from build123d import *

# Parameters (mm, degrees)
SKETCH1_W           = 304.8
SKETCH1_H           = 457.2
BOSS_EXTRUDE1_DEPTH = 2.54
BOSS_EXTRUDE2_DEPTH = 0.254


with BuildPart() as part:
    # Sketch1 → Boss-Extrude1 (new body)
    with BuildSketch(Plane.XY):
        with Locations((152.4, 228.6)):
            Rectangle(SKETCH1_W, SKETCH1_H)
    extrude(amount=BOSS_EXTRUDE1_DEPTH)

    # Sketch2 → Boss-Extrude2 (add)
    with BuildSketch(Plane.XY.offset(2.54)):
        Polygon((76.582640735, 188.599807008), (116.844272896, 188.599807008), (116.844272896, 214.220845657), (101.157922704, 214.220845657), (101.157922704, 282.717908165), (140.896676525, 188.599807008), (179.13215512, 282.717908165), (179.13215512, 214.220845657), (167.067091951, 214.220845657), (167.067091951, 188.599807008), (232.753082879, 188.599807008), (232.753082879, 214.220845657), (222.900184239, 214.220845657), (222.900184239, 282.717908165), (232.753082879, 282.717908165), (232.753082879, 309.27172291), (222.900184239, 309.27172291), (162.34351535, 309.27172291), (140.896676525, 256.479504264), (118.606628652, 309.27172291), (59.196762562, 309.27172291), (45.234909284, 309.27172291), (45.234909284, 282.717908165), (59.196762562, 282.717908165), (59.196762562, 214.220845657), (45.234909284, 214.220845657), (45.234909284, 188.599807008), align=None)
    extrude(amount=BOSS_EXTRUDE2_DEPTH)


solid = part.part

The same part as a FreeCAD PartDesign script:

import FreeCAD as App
import Part
import Sketcher

V = App.Vector
Q = App.Units.Quantity

doc = App.newDocument("Part")
body = doc.addObject("PartDesign::Body", "Body")

# Sketch on XY plane
sketch1 = body.newObject("Sketcher::SketchObject", "Sketch")
sketch1.AttachmentSupport = (doc.getObject("XY_Plane"), [""])
sketch1.MapMode = "FlatFace"
sketch1.addGeometry([
    Part.LineSegment(V(0, 457.2, 0), V(0, 0, 0)),
    Part.LineSegment(V(0, 0, 0), V(304.8, 0, 0)),
    Part.LineSegment(V(304.8, 0, 0), V(304.8, 457.2, 0)),
    Part.LineSegment(V(304.8, 457.2, 0), V(0, 457.2, 0)),
], False)
sketch1.addConstraint([
    Sketcher.Constraint("Coincident", 0, 2, 1, 1),
    Sketcher.Constraint("Coincident", 1, 2, 2, 1),
    Sketcher.Constraint("Coincident", 2, 2, 3, 1),
    Sketcher.Constraint("Coincident", 3, 2, 0, 1),
    Sketcher.Constraint("Vertical", 0),
    Sketcher.Constraint("Horizontal", 1),
    Sketcher.Constraint("Vertical", 2),
    Sketcher.Constraint("Horizontal", 3),
    Sketcher.Constraint("Coincident", 0, 2, -1, 1),
    Sketcher.Constraint("DistanceX", 1, 1, 1, 2, Q("12 in")),
    Sketcher.Constraint("DistanceY", 0, 2, 0, 1, Q("18 in")),
])
pad1 = body.newObject("PartDesign::Pad", "Pad")
pad1.Profile = sketch1
pad1.Length = Q("0.1 in")

# Sketch on XY plane
sketch2 = body.newObject("Sketcher::SketchObject", "Sketch001")
sketch2.AttachmentSupport = (doc.getObject("XY_Plane"), [""])
sketch2.MapMode = "FlatFace"
sketch2.AttachmentOffset = App.Placement(V(0, 0, 0.1 * 25.4), App.Rotation())
sketch2.addGeometry([
    Part.LineSegment(V(116.844273, 188.599807, 0), V(116.844273, 214.220846, 0)),  # 0
    Part.LineSegment(V(116.844273, 214.220846, 0), V(101.157923, 214.220846, 0)),  # 1
    Part.LineSegment(V(101.157923, 214.220846, 0), V(101.157923, 282.717908, 0)),  # 2
    Part.LineSegment(V(101.157923, 282.717908, 0), V(140.896677, 188.599807, 0)),  # 3
    Part.LineSegment(V(140.896677, 188.599807, 0), V(179.132155, 282.717908, 0)),  # 4
    Part.LineSegment(V(179.132155, 282.717908, 0), V(179.132155, 214.220846, 0)),  # 5
    Part.LineSegment(V(179.132155, 214.220846, 0), V(167.067092, 214.220846, 0)),  # 6
    Part.LineSegment(V(167.067092, 214.220846, 0), V(167.067092, 188.599807, 0)),  # 7
    Part.LineSegment(V(167.067092, 188.599807, 0), V(232.753083, 188.599807, 0)),  # 8
    Part.LineSegment(V(232.753083, 188.599807, 0), V(232.753083, 214.220846, 0)),  # 9
    Part.LineSegment(V(232.753083, 214.220846, 0), V(222.900184, 214.220846, 0)),  # 10
    Part.LineSegment(V(222.900184, 214.220846, 0), V(222.900184, 282.717908, 0)),  # 11
    Part.LineSegment(V(222.900184, 282.717908, 0), V(232.753083, 282.717908, 0)),  # 12
    Part.LineSegment(V(232.753083, 282.717908, 0), V(232.753083, 309.271723, 0)),  # 13
    Part.LineSegment(V(232.753083, 309.271723, 0), V(162.343515, 309.271723, 0)),  # 14
    Part.LineSegment(V(162.343515, 309.271723, 0), V(140.896677, 256.479504, 0)),  # 15
    Part.LineSegment(V(140.896677, 256.479504, 0), V(118.606629, 309.271723, 0)),  # 16
    Part.LineSegment(V(118.606629, 309.271723, 0), V(45.234909, 309.271723, 0)),  # 17
    Part.LineSegment(V(45.234909, 309.271723, 0), V(45.234909, 282.717908, 0)),  # 18
    Part.LineSegment(V(45.234909, 282.717908, 0), V(59.196763, 282.717908, 0)),  # 19
    Part.LineSegment(V(59.196763, 282.717908, 0), V(59.196763, 214.220846, 0)),  # 20
    Part.LineSegment(V(59.196763, 214.220846, 0), V(45.234909, 214.220846, 0)),  # 21
    Part.LineSegment(V(45.234909, 214.220846, 0), V(45.234909, 188.599807, 0)),  # 22
    Part.LineSegment(V(45.234909, 188.599807, 0), V(116.844273, 188.599807, 0)),  # 23
], False)
sketch2.addConstraint([
    Sketcher.Constraint("Coincident", 0, 2, 1, 1),
    Sketcher.Constraint("Coincident", 1, 2, 2, 1),
    Sketcher.Constraint("Coincident", 2, 2, 3, 1),
    Sketcher.Constraint("Coincident", 3, 2, 4, 1),
    Sketcher.Constraint("Coincident", 4, 2, 5, 1),
    Sketcher.Constraint("Coincident", 5, 2, 6, 1),
    Sketcher.Constraint("Coincident", 6, 2, 7, 1),
    Sketcher.Constraint("Coincident", 7, 2, 8, 1),
    Sketcher.Constraint("Coincident", 8, 2, 9, 1),
    Sketcher.Constraint("Coincident", 9, 2, 10, 1),
    Sketcher.Constraint("Coincident", 10, 2, 11, 1),
    Sketcher.Constraint("Coincident", 11, 2, 12, 1),
    Sketcher.Constraint("Coincident", 12, 2, 13, 1),
    Sketcher.Constraint("Coincident", 13, 2, 14, 1),
    Sketcher.Constraint("Coincident", 14, 2, 15, 1),
    Sketcher.Constraint("Coincident", 15, 2, 16, 1),
    Sketcher.Constraint("Coincident", 16, 2, 17, 1),
    Sketcher.Constraint("Coincident", 17, 2, 18, 1),
    Sketcher.Constraint("Coincident", 18, 2, 19, 1),
    Sketcher.Constraint("Coincident", 19, 2, 20, 1),
    Sketcher.Constraint("Coincident", 20, 2, 21, 1),
    Sketcher.Constraint("Coincident", 21, 2, 22, 1),
    Sketcher.Constraint("Coincident", 22, 2, 23, 1),
    Sketcher.Constraint("Coincident", 23, 2, 0, 1),
    Sketcher.Constraint("Vertical", 0),
    Sketcher.Constraint("Horizontal", 1),
    Sketcher.Constraint("Vertical", 2),
    Sketcher.Constraint("Vertical", 5),
    Sketcher.Constraint("Horizontal", 6),
    Sketcher.Constraint("Vertical", 7),
    Sketcher.Constraint("Horizontal", 8),
    Sketcher.Constraint("Vertical", 9),
    Sketcher.Constraint("Horizontal", 10),
    Sketcher.Constraint("Vertical", 11),
    Sketcher.Constraint("Horizontal", 12),
    Sketcher.Constraint("Vertical", 13),
    Sketcher.Constraint("Horizontal", 14),
    Sketcher.Constraint("Horizontal", 17),
    Sketcher.Constraint("Vertical", 18),
    Sketcher.Constraint("Horizontal", 19),
    Sketcher.Constraint("Vertical", 20),
    Sketcher.Constraint("Horizontal", 21),
    Sketcher.Constraint("Vertical", 22),
    Sketcher.Constraint("Horizontal", 23),
    Sketcher.Constraint("Parallel", 4, 15),
    Sketcher.Constraint("Parallel", 3, 16),
    Sketcher.Constraint("Horizontal", 2, 2, 4, 2),
    Sketcher.Constraint("Horizontal", 1, 2, 5, 2),
    Sketcher.Constraint("Horizontal", 3, 2, 7, 2),
    Sketcher.Constraint("Horizontal", 6, 2, 9, 2),
    Sketcher.Constraint("Horizontal", 4, 2, 11, 2),
    Sketcher.Constraint("Horizontal", 14, 2, 16, 2),
    Sketcher.Constraint("Horizontal", 12, 2, 18, 2),
    Sketcher.Constraint("Horizontal", 10, 2, 20, 2),
    Sketcher.Constraint("Horizontal", 8, 2, 22, 2),
    Sketcher.Constraint("Vertical", 9, 2, 12, 2),
    Sketcher.Constraint("Vertical", 3, 2, 15, 2),
    Sketcher.Constraint("Vertical", 18, 2, 21, 2),
    Sketcher.Constraint("DistanceX", 10, 2, 10, 1, 9.852899),
    Sketcher.Constraint("DistanceX", 1, 2, 1, 1, 15.68635),
    Sketcher.Constraint("DistanceX", 8, 1, 8, 2, 65.685991),
    Sketcher.Constraint("DistanceX", 17, 2, 17, 1, 73.371719),
    Sketcher.Constraint("DistanceY", 0, 1, 0, 2, 25.621039),
    Sketcher.Constraint("DistanceY", 3, 2, 2, 2, 94.118101),
    Sketcher.Constraint("Distance", 4, 101.588232),
    Sketcher.Constraint("DistanceX", 6, 2, 6, 1, 12.065063),
    Sketcher.Constraint("DistanceX", 14, 2, 14, 1, 70.409568),
    Sketcher.Constraint("DistanceX", 19, 1, 19, 2, 13.961853),
    Sketcher.Constraint("DistanceX", 23, 1, 23, 2, 71.609364),
    Sketcher.Constraint("DistanceY", 13, 1, 13, 2, 26.553815),
    Sketcher.Constraint("DistanceY", -1, 1, 2, 2, 282.717908),
    Sketcher.Constraint("DistanceX", -1, 1, 6, 2, 167.067092),
])
pad2 = body.newObject("PartDesign::Pad", "Pad001")
pad2.Profile = sketch2
pad2.Length = Q("0.01 in")

doc.recompute()
